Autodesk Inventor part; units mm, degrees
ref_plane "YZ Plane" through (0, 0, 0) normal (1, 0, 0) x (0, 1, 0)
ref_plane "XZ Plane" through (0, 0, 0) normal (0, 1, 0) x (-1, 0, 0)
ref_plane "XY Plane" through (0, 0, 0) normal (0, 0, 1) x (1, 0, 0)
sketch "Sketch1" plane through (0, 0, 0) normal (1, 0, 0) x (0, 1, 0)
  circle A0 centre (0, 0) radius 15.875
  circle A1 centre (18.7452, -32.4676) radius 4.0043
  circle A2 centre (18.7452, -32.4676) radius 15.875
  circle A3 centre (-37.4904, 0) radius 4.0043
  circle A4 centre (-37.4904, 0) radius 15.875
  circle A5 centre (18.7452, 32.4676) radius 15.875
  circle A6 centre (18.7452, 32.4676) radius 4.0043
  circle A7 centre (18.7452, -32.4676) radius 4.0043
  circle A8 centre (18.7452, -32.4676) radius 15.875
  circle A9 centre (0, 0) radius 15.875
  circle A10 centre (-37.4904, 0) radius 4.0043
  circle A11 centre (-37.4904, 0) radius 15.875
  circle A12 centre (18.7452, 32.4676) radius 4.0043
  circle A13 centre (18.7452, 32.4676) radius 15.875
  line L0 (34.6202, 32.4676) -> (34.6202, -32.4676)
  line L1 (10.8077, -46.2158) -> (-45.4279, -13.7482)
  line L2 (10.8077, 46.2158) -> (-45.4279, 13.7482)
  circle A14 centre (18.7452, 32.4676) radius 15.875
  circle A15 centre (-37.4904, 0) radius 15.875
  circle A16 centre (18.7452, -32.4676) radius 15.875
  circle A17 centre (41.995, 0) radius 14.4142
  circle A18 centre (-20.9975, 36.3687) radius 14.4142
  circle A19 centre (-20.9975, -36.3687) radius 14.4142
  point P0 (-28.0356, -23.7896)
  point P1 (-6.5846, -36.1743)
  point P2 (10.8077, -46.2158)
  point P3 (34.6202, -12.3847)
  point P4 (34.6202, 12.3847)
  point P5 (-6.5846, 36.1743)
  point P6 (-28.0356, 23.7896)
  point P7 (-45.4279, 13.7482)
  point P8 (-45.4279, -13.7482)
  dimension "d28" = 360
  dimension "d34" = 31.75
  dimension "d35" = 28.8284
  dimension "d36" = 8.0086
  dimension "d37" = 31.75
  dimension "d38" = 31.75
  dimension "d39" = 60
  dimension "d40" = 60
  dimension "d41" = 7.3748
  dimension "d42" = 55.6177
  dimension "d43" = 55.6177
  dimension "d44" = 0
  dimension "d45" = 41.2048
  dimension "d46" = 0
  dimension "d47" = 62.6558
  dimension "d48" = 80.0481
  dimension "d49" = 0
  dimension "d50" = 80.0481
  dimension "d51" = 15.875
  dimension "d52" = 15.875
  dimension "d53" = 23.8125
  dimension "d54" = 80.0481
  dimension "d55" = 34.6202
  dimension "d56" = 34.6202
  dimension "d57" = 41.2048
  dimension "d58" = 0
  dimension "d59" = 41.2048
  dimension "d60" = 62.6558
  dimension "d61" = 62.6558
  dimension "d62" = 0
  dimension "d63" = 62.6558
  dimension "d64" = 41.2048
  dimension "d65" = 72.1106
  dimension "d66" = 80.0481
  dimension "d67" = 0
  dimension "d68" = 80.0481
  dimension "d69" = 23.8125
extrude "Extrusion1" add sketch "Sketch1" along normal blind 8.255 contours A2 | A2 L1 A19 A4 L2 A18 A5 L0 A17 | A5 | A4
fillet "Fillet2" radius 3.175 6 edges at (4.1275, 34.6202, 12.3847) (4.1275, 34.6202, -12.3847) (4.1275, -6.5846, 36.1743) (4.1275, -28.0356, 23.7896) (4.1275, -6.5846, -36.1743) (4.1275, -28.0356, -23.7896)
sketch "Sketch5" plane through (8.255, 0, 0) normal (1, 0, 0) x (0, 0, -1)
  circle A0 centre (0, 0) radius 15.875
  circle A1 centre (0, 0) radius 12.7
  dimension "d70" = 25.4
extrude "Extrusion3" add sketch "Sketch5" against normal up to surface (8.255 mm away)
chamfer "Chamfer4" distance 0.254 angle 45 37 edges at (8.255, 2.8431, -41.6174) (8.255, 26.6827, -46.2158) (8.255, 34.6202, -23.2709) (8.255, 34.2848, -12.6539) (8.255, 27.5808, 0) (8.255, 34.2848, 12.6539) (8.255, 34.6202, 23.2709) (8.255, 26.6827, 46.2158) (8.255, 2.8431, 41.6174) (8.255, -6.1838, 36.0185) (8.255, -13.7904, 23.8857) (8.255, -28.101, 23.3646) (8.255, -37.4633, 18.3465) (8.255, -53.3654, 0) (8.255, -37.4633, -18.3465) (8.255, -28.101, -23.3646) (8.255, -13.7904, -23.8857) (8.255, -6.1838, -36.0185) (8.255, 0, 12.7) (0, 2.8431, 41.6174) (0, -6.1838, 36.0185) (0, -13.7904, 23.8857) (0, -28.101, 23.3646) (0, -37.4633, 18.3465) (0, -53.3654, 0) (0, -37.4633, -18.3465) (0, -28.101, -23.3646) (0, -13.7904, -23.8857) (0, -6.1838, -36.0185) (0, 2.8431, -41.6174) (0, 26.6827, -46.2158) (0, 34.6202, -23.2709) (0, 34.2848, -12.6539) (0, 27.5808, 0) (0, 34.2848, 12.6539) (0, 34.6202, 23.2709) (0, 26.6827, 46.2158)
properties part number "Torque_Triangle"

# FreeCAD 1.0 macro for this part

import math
import FreeCAD as App
import Part
import Sketcher
from FreeCAD import Vector
Q = App.Units.Quantity


def edges_at(feature, points):
    """Names of the edges that pass closest to the given points."""
    edges = feature.Shape.Edges
    near = lambda p: min(range(len(edges)), key=lambda i: edges[i].distToShape(Part.Vertex(*p))[0])
    return sorted({f"Edge{near(p) + 1}" for p in points})

doc = App.newDocument("Part")
params = doc.addObject("Spreadsheet::Sheet", "Params")
for row, (alias, value) in enumerate([
    ("sketch1_diameter", "1.25 in"),
    ("pad1_length", "0.325 in"),
    ("fillet_radius", "0.125 in"),
    ("sketch2_diameter", "1 in"),
    ("sketch2_diameter2", "1.25 in"),
    ("pad2_length", "0.325 in"),
    ("chamfer_size", "0.01 in"),
], start=1):
    params.set(f"A{row}", alias)
    params.set(f"B{row}", "=" + value)
    params.setAlias(f"B{row}", alias)

body = doc.addObject("PartDesign::Body", "Body")

# Sketch on YZ plane
sketch1 = body.newObject("Sketcher::SketchObject", "Sketch")
sketch1.AttachmentSupport = (doc.getObject("YZ_Plane"), [""])
sketch1.MapMode = "FlatFace"
sketch1.addGeometry(Part.ArcOfCircle(Part.Circle(Vector(18.7, -32.5, 0), Vector(0, 0, 1), 15.9), math.radians(-120), math.radians(0)), False)
sketch1.addGeometry(Part.LineSegment(Vector(34.6, -32.5, 0), Vector(34.6, -12.4, 0)), False)
sketch1.addGeometry(Part.ArcOfCircle(Part.Circle(Vector(42, 0, 0), Vector(0, 0, 1), 14.4), math.radians(121), math.radians(239)), False)
sketch1.addGeometry(Part.LineSegment(Vector(34.6, 12.4, 0), Vector(34.6, 32.5, 0)), False)
sketch1.addGeometry(Part.ArcOfCircle(Part.Circle(Vector(18.7, 32.5, 0), Vector(0, 0, 1), 15.9), math.radians(0), math.radians(120)), False)
sketch1.addGeometry(Part.LineSegment(Vector(10.8, 46.2, 0), Vector(-6.6, 36.2, 0)), False)
sketch1.addGeometry(Part.ArcOfCircle(Part.Circle(Vector(-21, 36.4, 0), Vector(0, 0, 1), 14.4), math.radians(-119), math.radians(-1)), False)
sketch1.addGeometry(Part.LineSegment(Vector(-28, 23.8, 0), Vector(-45.4, 13.7, 0)), False)
sketch1.addGeometry(Part.ArcOfCircle(Part.Circle(Vector(-37.5, 0, 0), Vector(0, 0, 1), 15.9), math.radians(120), math.radians(240)), False)
sketch1.addGeometry(Part.LineSegment(Vector(-45.4, -13.7, 0), Vector(-28, -23.8, 0)), False)
sketch1.addGeometry(Part.ArcOfCircle(Part.Circle(Vector(-21, -36.4, 0), Vector(0, 0, 1), 14.4), math.radians(1), math.radians(119)), False)
sketch1.addGeometry(Part.LineSegment(Vector(-6.6, -36.2, 0), Vector(10.8, -46.2, 0)), False)
sketch1.addGeometry(Part.Circle(Vector(18.7, -32.5, 0), Vector(0, 0, 1), 4), False)
sketch1.addGeometry(Part.Circle(Vector(0, 0, 0), Vector(0, 0, 1), 15.9), False)
sketch1.addGeometry(Part.Circle(Vector(-37.5, 0, 0), Vector(0, 0, 1), 4), False)
sketch1.addGeometry(Part.Circle(Vector(18.7, 32.5, 0), Vector(0, 0, 1), 4), False)
sketch1.addConstraint(Sketcher.Constraint("Tangent", 0, 2, 1, 1))
sketch1.addConstraint(Sketcher.Constraint("Coincident", 1, 2, 2, 2))
sketch1.addConstraint(Sketcher.Constraint("Coincident", 2, 1, 3, 1))
sketch1.addConstraint(Sketcher.Constraint("Tangent", 3, 2, 4, 1))
sketch1.addConstraint(Sketcher.Constraint("Tangent", 4, 2, 5, 1))
sketch1.addConstraint(Sketcher.Constraint("Coincident", 5, 2, 6, 2))
sketch1.addConstraint(Sketcher.Constraint("Coincident", 6, 1, 7, 1))
sketch1.addConstraint(Sketcher.Constraint("Tangent", 7, 2, 8, 1))
sketch1.addConstraint(Sketcher.Constraint("Tangent", 8, 2, 9, 1))
sketch1.addConstraint(Sketcher.Constraint("Coincident", 9, 2, 10, 2))
sketch1.addConstraint(Sketcher.Constraint("Coincident", 10, 1, 11, 1))
sketch1.addConstraint(Sketcher.Constraint("Tangent", 11, 2, 0, 1))
sketch1.addConstraint(Sketcher.Constraint("Vertical", 1))
sketch1.addConstraint(Sketcher.Constraint("Vertical", 3))
sketch1.addConstraint(Sketcher.Constraint("Coincident", 13, 3, -1, 1))
sketch1.addConstraint(Sketcher.Constraint("Coincident", 12, 3, 0, 3))
sketch1.addConstraint(Sketcher.Constraint("Coincident", 14, 3, 8, 3))
sketch1.addConstraint(Sketcher.Constraint("Coincident", 15, 3, 4, 3))
sketch1.addConstraint(Sketcher.Constraint("Equal", 0, 4))
sketch1.addConstraint(Sketcher.Constraint("Equal", 2, 6))
sketch1.addConstraint(Sketcher.Constraint("Equal", 4, 8))
sketch1.addConstraint(Sketcher.Constraint("Equal", 6, 10))
sketch1.addConstraint(Sketcher.Constraint("Equal", 8, 13))
sketch1.addConstraint(Sketcher.Constraint("Equal", 12, 14))
sketch1.addConstraint(Sketcher.Constraint("Equal", 14, 15))
sketch1.addConstraint(Sketcher.Constraint("Symmetric", 0, 3, 4, 3, -1))
sketch1.addConstraint(Sketcher.Constraint("Symmetric", 6, 3, 10, 3, -1))
sketch1.addConstraint(Sketcher.Constraint("Symmetric", 7, 2, 8, 2, -1))
sketch1.addConstraint(Sketcher.Constraint("PointOnObject", 2, 3, -1))
sketch1.addConstraint(Sketcher.Constraint("Parallel", 5, 7))
sketch1.addConstraint(Sketcher.Constraint("Parallel", 9, 11))
sketch1.addConstraint(Sketcher.Constraint("Equal", 5, 7))
sketch1.addConstraint(Sketcher.Constraint("Diameter", 13, Q("1.25 in")))
sketch1.addConstraint(Sketcher.Constraint("Diameter", 12, Q("0.3153 in")))
sketch1.addConstraint(Sketcher.Constraint("Radius", 2, Q("0.5675 in")))
sketch1.addConstraint(Sketcher.Constraint("DistanceX", -1, 1, 0, 2, Q("1.363 in")))
sketch1.addConstraint(Sketcher.Constraint("Angle", 5, Q("-150 deg")))
sketch1.addConstraint(Sketcher.Constraint("DistanceX", 0, 2, 2, 3, 7.3748))
sketch1.addConstraint(Sketcher.Constraint("DistanceX", 10, 3, 0, 2, 55.6177))
sketch1.addConstraint(Sketcher.Constraint("DistanceX", 8, 3, -1, 1, Q("1.476 in")))
sketch1.addConstraint(Sketcher.Constraint("DistanceY", 1, 1, 1, 2, 20.0829))
sketch1.setExpression("Constraints[32]", "Params.sketch1_diameter")
pad1 = body.newObject("PartDesign::Pad", "Pad")
pad1.Profile = sketch1
pad1.setExpression("Length", "Params.pad1_length")
doc.recompute()

fillet = body.newObject("PartDesign::Fillet", "Fillet")
fillet.Base = (pad1, edges_at(pad1, [
    (4.128, 34.62, 12.385),
    (4.128, 34.62, -12.385),
    (4.128, -6.585, 36.174),
    (4.128, -28.036, 23.79),
    (4.128, -6.585, -36.174),
    (4.128, -28.036, -23.79),
]))
fillet.setExpression("Radius", "Params.fillet_radius")

# Sketch on YZ plane
sketch2 = body.newObject("Sketcher::SketchObject", "Sketch001")
sketch2.AttachmentSupport = (doc.getObject("YZ_Plane"), [""])
sketch2.MapMode = "FlatFace"
sketch2.AttachmentOffset = App.Placement(Vector(0, 0, 0.325 * 25.4), App.Rotation())
sketch2.addGeometry(Part.Circle(Vector(0, 0, 0), Vector(0, 0, 1), 16), False)
sketch2.addGeometry(Part.Circle(Vector(0, 0, 0), Vector(0, 0, 1), 13), False)
sketch2.addConstraint(Sketcher.Constraint("Coincident", 0, 3, -1, 1))
sketch2.addConstraint(Sketcher.Constraint("Coincident", 1, 3, -1, 1))
sketch2.addConstraint(Sketcher.Constraint("Diameter", 1, Q("1 in")))
sketch2.addConstraint(Sketcher.Constraint("Diameter", 0, Q("1.25 in")))
sketch2.setExpression("Constraints[2]", "Params.sketch2_diameter")
sketch2.setExpression("Constraints[3]", "Params.sketch2_diameter2")
pad2 = body.newObject("PartDesign::Pad", "Pad001")
pad2.Profile = sketch2
pad2.setExpression("Length", "Params.pad2_length")
pad2.Reversed = True
doc.recompute()

chamfer = body.newObject("PartDesign::Chamfer", "Chamfer")
chamfer.Base = (pad2, edges_at(pad2, [
    (8.255, 2.843, -41.617),
    (8.255, 26.683, -46.216),
    (8.255, 34.62, -23.271),
    (8.255, 34.285, -12.654),
    (8.255, 27.581, 0),
    (8.255, 34.285, 12.654),
    (8.255, 34.62, 23.271),
    (8.255, 26.683, 46.216),
    (8.255, 2.843, 41.617),
    (8.255, -6.184, 36.019),
    (8.255, -13.79, 23.886),
    (8.255, -28.101, 23.365),
    (8.255, -37.463, 18.346),
    (8.255, -53.365, 0),
    (8.255, -37.463, -18.346),
    (8.255, -28.101, -23.365),
    (8.255, -13.79, -23.886),
    (8.255, -6.184, -36.019),
    (8.255, 0, 12.7),
    (0, 2.843, 41.617),
    (0, -6.184, 36.019),
    (0, -13.79, 23.886),
    (0, -28.101, 23.365),
    (0, -37.463, 18.346),
    (0, -53.365, 0),
    (0, -37.463, -18.346),
    (0, -28.101, -23.365),
    (0, -13.79, -23.886),
    (0, -6.184, -36.019),
    (0, 2.843, -41.617),
    (0, 26.683, -46.216),
    (0, 34.62, -23.271),
    (0, 34.285, -12.654),
    (0, 27.581, 0),
    (0, 34.285, 12.654),
    (0, 34.62, 23.271),
    (0, 26.683, 46.216),
]))
chamfer.setExpression("Size", "Params.chamfer_size")

doc.recompute()
